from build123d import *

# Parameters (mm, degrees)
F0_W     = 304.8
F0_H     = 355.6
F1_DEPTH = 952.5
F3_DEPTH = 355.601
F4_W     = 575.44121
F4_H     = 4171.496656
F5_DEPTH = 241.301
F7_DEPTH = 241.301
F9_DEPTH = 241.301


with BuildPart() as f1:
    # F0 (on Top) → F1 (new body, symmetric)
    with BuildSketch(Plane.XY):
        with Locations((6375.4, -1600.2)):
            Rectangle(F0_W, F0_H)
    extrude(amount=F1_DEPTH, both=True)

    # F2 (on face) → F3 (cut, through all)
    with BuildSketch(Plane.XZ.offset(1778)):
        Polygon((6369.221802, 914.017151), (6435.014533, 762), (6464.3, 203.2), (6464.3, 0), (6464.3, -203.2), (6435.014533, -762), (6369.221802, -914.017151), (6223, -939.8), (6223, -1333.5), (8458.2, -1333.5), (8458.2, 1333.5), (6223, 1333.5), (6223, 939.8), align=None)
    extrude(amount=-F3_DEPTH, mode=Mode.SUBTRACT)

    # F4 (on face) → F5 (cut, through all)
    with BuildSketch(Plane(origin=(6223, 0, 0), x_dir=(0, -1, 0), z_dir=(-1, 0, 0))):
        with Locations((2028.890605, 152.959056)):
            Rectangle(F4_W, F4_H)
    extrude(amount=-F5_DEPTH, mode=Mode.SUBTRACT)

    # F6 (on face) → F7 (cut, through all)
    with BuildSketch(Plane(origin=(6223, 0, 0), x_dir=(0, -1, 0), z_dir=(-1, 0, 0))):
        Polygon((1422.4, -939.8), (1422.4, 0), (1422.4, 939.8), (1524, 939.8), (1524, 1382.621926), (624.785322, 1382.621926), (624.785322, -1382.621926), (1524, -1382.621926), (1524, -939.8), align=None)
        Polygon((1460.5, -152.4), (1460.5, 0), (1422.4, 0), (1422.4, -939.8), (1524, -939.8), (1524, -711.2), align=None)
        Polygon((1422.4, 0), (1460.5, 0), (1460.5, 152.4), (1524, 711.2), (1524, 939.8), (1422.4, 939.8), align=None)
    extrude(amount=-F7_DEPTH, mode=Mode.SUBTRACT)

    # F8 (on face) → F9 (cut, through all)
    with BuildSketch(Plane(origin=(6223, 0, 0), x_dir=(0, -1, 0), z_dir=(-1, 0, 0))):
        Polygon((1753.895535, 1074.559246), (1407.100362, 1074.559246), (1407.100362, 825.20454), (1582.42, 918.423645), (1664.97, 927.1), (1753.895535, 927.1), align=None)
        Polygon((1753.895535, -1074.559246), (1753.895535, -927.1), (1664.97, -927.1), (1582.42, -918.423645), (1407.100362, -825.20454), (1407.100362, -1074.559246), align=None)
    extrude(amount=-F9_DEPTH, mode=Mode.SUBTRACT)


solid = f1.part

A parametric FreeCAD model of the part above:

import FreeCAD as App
import Part
import Sketcher
Q = App.Units.Quantity


def add_polygon(sketch, points):
    """Adds a closed chain of lines whose ends are joined by coincident constraints."""
    first, n = sketch.GeometryCount, len(points)
    for a, b in zip(points, points[1:] + points[:1]):
        sketch.addGeometry(Part.LineSegment(App.Vector(*a, 0), App.Vector(*b, 0)), False)
    for i in range(n):
        sketch.addConstraint(Sketcher.Constraint("Coincident", first + i, 2, first + (i + 1) % n, 1))

doc = App.newDocument("Part")
body = doc.addObject("PartDesign::Body", "Body")

# Sketch on XY plane
sketch1 = body.newObject("Sketcher::SketchObject", "Sketch")
sketch1.AttachmentSupport = (doc.getObject("XY_Plane"), [""])
sketch1.MapMode = "FlatFace"
add_polygon(sketch1, [(6223, -1422), (6223, -1778), (6528, -1778), (6528, -1422)])  # lines 0-3
sketch1.addConstraint(Sketcher.Constraint("Vertical", 0))
sketch1.addConstraint(Sketcher.Constraint("Horizontal", 1))
sketch1.addConstraint(Sketcher.Constraint("Vertical", 2))
sketch1.addConstraint(Sketcher.Constraint("Horizontal", 3))
sketch1.addConstraint(Sketcher.Constraint("DistanceX", 1, 1, 1, 2, Q("12 in")))
sketch1.addConstraint(Sketcher.Constraint("DistanceY", 0, 2, 0, 1, Q("14 in")))
sketch1.addConstraint(Sketcher.Constraint("DistanceX", -1, 1, 0, 2, Q("245 in")))
sketch1.addConstraint(Sketcher.Constraint("DistanceY", 0, 2, -1, 1, Q("70 in")))
pad1 = body.newObject("PartDesign::Pad", "Pad")
pad1.Profile = sketch1
pad1.Length = Q("75 in")
pad1.Midplane = True

# Sketch on XZ plane
sketch2 = body.newObject("Sketcher::SketchObject", "Sketch001")
sketch2.AttachmentSupport = (doc.getObject("XZ_Plane"), [""])
sketch2.MapMode = "FlatFace"
sketch2.AttachmentOffset = App.Placement(App.Vector(0, 0, 70 * 25.4), App.Rotation())
add_polygon(sketch2, [(6369, 914), (6435, 762), (6464, 203), (6464, -203), (6435, -762), (6369, -914), (6223, -940), (6223, -1334), (8458, -1334), (8458, 1334), (6223, 1334), (6223, 940)])  # lines 0-11
sketch2.addConstraint(Sketcher.Constraint("Vertical", 2))
sketch2.addConstraint(Sketcher.Constraint("Vertical", 6))
sketch2.addConstraint(Sketcher.Constraint("Horizontal", 7))
sketch2.addConstraint(Sketcher.Constraint("Vertical", 8))
sketch2.addConstraint(Sketcher.Constraint("Horizontal", 9))
sketch2.addConstraint(Sketcher.Constraint("Vertical", 10))
sketch2.addConstraint(Sketcher.Constraint("Symmetric", 0, 2, 3, 2, -1))
sketch2.addConstraint(Sketcher.Constraint("Symmetric", 6, 2, 9, 2, -1))
sketch2.addConstraint(Sketcher.Constraint("Symmetric", 4, 2, 11, 2, -1))
sketch2.addConstraint(Sketcher.Constraint("Equal", 6, 10))
sketch2.addConstraint(Sketcher.Constraint("Equal", 1, 3))
sketch2.addConstraint(Sketcher.Constraint("DistanceX", 7, 1, 7, 2, Q("88 in")))
sketch2.addConstraint(Sketcher.Constraint("DistanceY", 2, 2, 2, 1, Q("16 in")))
sketch2.addConstraint(Sketcher.Constraint("DistanceY", 8, 1, 8, 2, Q("105 in")))
sketch2.addConstraint(Sketcher.Constraint("DistanceY", 6, 2, 6, 1, Q("15.5 in")))
sketch2.addConstraint(Sketcher.Constraint("DistanceY", -1, 1, 0, 2, Q("30 in")))
sketch2.addConstraint(Sketcher.Constraint("DistanceX", -1, 1, 5, 2, Q("245 in")))
sketch2.addConstraint(Sketcher.Constraint("Angle", 1, Q("-87 deg")))
sketch2.addConstraint(Sketcher.Constraint("Angle", 5, Q("-170 deg")))
sketch2.addConstraint(Sketcher.Constraint("DistanceX", -1, 1, 1, 2, Q("254.5 in")))
sketch2.addConstraint(Sketcher.Constraint("DistanceX", -1, 1, 4, 2, Q("6369.221802 mm")))
pocket1 = body.newObject("PartDesign::Pocket", "Pocket")
pocket1.Profile = sketch2
pocket1.Type = "ThroughAll"

# Sketch on YZ plane
sketch3 = body.newObject("Sketcher::SketchObject", "Sketch002")
sketch3.AttachmentSupport = (doc.getObject("YZ_Plane"), [""])
sketch3.MapMode = "FlatFace"
sketch3.AttachmentOffset = App.Placement(App.Vector(0, 0, 245 * 25.4), App.Rotation())
add_polygon(sketch3, [(-1741, 2239), (-1741, -1933), (-2317, -1933), (-2317, 2239)])  # lines 0-3
sketch3.addConstraint(Sketcher.Constraint("Vertical", 0))
sketch3.addConstraint(Sketcher.Constraint("Horizontal", 1))
sketch3.addConstraint(Sketcher.Constraint("Vertical", 2))
sketch3.addConstraint(Sketcher.Constraint("Horizontal", 3))
sketch3.addConstraint(Sketcher.Constraint("DistanceX", 0, 2, -1, 1, Q("68.55 in")))
sketch3.addConstraint(Sketcher.Constraint("DistanceX", 1, 2, 1, 1, Q("575.44121 mm")))
sketch3.addConstraint(Sketcher.Constraint("DistanceY", 0, 2, 0, 1, Q("4171.496656 mm")))
sketch3.addConstraint(Sketcher.Constraint("DistanceY", 0, 2, -1, 1, Q("1932.789272 mm")))
pocket2 = body.newObject("PartDesign::Pocket", "Pocket001")
pocket2.Profile = sketch3
pocket2.Type = "ThroughAll"
pocket2.Reversed = True

# Sketch on YZ plane
sketch4 = body.newObject("Sketcher::SketchObject", "Sketch003")
sketch4.AttachmentSupport = (doc.getObject("YZ_Plane"), [""])
sketch4.MapMode = "FlatFace"
sketch4.AttachmentOffset = App.Placement(App.Vector(0, 0, 245 * 25.4), App.Rotation())
add_polygon(sketch4, [(-1524, 1383), (-625, 1383), (-625, -1383), (-1524, -1383), (-1524, -711), (-1460, -152), (-1460, 152), (-1524, 711)])  # lines 0-7
sketch4.addConstraint(Sketcher.Constraint("Horizontal", 0))
sketch4.addConstraint(Sketcher.Constraint("Vertical", 1))
sketch4.addConstraint(Sketcher.Constraint("Horizontal", 2))
sketch4.addConstraint(Sketcher.Constraint("Vertical", 3))
sketch4.addConstraint(Sketcher.Constraint("Vertical", 5))
sketch4.addConstraint(Sketcher.Constraint("Vertical", 7))
sketch4.addConstraint(Sketcher.Constraint("Symmetric", 3, 2, 6, 2, -1))
sketch4.addConstraint(Sketcher.Constraint("Equal", 3, 7))
sketch4.addConstraint(Sketcher.Constraint("Equal", 4, 6))
sketch4.addConstraint(Sketcher.Constraint("DistanceY", 5, 1, 5, 2, Q("12 in")))
sketch4.addConstraint(Sketcher.Constraint("DistanceX", 2, 2, -1, 1, Q("60 in")))
sketch4.addConstraint(Sketcher.Constraint("DistanceY", 3, 2, -1, 1, Q("28 in")))
sketch4.addConstraint(Sketcher.Constraint("DistanceX", 4, 2, -1, 1, Q("57.5 in")))
sketch4.addConstraint(Sketcher.Constraint("DistanceX", 0, 1, 0, 2, Q("899.214678 mm")))
sketch4.addConstraint(Sketcher.Constraint("DistanceY", 1, 2, 1, 1, Q("2765.243852 mm")))
pocket3 = body.newObject("PartDesign::Pocket", "Pocket002")
pocket3.Profile = sketch4
pocket3.Type = "ThroughAll"
pocket3.Reversed = True

# Sketch on YZ plane
sketch5 = body.newObject("Sketcher::SketchObject", "Sketch004")
sketch5.AttachmentSupport = (doc.getObject("YZ_Plane"), [""])
sketch5.MapMode = "FlatFace"
sketch5.AttachmentOffset = App.Placement(App.Vector(0, 0, 245 * 25.4), App.Rotation())
add_polygon(sketch5, [(-1754, 1075), (-1407, 1075), (-1407, 825), (-1582, 918), (-1665, 927), (-1754, 927)])  # lines 0-5
add_polygon(sketch5, [(-1754, -1075), (-1754, -927), (-1665, -927), (-1582, -918), (-1407, -825), (-1407, -1075)])  # lines 6-11
sketch5.addConstraint(Sketcher.Constraint("Horizontal", 0))
sketch5.addConstraint(Sketcher.Constraint("Vertical", 1))
sketch5.addConstraint(Sketcher.Constraint("Horizontal", 4))
sketch5.addConstraint(Sketcher.Constraint("Vertical", 5))
sketch5.addConstraint(Sketcher.Constraint("Vertical", 6))
sketch5.addConstraint(Sketcher.Constraint("Horizontal", 7))
sketch5.addConstraint(Sketcher.Constraint("Vertical", 10))
sketch5.addConstraint(Sketcher.Constraint("Horizontal", 11))
sketch5.addConstraint(Sketcher.Constraint("Symmetric", 4, 2, 6, 2, -1))
sketch5.addConstraint(Sketcher.Constraint("Symmetric", 2, 2, 8, 2, -1))
sketch5.addConstraint(Sketcher.Constraint("Symmetric", 1, 2, 9, 2, -1))
sketch5.addConstraint(Sketcher.Constraint("Vertical", 3, 2, 7, 2))
sketch5.addConstraint(Sketcher.Constraint("Equal", 5, 6))
sketch5.addConstraint(Sketcher.Constraint("Angle", 2, Q("152 deg")))
sketch5.addConstraint(Sketcher.Constraint("Angle", 3, Q("174 deg")))
sketch5.addConstraint(Sketcher.Constraint("DistanceY", 6, 2, 4, 2, Q("73 in")))
sketch5.addConstraint(Sketcher.Constraint("DistanceX", 2, 2, -1, 1, Q("62.3 in")))
sketch5.addConstraint(Sketcher.Constraint("DistanceX", 3, 2, -1, 1, Q("65.55 in")))
sketch5.addConstraint(Sketcher.Constraint("DistanceY", 2, 2, 0, 2, Q("156.135601 mm")))
sketch5.addConstraint(Sketcher.Constraint("Distance", 2, Q("198.561771 mm")))
sketch5.addConstraint(Sketcher.Constraint("DistanceX", 0, 1, 0, 2, Q("346.795173 mm")))
pocket4 = body.newObject("PartDesign::Pocket", "Pocket003")
pocket4.Profile = sketch5
pocket4.Type = "ThroughAll"
pocket4.Reversed = True

doc.recompute()
